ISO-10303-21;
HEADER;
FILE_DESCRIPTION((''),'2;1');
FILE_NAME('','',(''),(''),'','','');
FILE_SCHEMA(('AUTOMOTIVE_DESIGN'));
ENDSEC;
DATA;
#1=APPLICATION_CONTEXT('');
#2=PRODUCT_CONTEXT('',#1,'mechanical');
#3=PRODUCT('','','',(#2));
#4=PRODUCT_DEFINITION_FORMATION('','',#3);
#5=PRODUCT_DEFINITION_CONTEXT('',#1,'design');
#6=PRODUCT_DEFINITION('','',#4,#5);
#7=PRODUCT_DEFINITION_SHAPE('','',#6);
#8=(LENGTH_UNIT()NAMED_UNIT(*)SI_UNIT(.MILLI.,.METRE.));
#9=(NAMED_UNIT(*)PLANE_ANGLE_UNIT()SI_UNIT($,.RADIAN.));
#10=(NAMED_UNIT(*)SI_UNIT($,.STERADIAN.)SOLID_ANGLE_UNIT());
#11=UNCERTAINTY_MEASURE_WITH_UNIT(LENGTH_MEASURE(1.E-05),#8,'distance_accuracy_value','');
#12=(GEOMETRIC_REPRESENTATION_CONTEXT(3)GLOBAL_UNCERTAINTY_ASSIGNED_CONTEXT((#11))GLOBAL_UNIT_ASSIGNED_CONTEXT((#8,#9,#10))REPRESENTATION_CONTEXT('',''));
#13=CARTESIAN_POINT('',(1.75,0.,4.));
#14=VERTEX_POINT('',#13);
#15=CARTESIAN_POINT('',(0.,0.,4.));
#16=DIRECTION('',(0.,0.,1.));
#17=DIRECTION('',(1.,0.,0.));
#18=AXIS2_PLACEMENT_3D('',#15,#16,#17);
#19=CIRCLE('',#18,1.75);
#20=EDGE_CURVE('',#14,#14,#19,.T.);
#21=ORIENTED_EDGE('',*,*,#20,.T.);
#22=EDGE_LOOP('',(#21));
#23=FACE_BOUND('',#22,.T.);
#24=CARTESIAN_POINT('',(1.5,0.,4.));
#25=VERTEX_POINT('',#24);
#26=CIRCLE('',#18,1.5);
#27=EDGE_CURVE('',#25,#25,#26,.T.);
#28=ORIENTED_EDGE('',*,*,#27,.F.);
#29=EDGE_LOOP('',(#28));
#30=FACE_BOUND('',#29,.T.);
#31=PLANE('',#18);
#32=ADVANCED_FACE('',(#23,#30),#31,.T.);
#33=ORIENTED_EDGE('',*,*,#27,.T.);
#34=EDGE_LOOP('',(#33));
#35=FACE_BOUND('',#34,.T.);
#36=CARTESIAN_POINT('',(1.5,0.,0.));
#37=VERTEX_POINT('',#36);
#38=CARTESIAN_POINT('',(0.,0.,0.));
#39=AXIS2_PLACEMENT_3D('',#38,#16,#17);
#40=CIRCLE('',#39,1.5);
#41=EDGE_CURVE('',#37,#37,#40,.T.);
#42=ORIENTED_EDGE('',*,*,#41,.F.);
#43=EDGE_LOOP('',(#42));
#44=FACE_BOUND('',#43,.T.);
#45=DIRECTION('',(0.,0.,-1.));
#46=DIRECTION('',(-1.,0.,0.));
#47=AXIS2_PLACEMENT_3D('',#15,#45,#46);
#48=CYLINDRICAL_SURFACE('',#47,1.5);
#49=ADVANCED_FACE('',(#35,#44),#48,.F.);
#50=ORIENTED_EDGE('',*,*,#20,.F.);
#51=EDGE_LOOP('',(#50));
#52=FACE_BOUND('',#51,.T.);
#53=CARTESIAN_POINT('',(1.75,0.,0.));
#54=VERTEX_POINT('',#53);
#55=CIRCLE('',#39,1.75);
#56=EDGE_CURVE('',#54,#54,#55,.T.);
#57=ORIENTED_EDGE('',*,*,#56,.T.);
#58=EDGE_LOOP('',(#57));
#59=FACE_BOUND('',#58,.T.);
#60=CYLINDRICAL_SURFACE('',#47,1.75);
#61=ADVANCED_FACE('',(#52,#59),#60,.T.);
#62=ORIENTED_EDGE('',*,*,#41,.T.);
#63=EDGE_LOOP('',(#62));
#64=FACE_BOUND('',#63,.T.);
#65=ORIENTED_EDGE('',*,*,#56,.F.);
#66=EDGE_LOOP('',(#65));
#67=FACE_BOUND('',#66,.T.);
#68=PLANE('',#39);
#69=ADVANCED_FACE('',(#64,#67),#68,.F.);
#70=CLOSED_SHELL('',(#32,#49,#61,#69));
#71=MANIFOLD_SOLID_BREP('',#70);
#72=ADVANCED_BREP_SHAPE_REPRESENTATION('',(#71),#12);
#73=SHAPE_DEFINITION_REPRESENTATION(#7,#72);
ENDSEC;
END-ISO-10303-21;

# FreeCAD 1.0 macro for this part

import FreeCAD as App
import Part
import Sketcher
from FreeCAD import Vector
Q = App.Units.Quantity

doc = App.newDocument("Part")
body = doc.addObject("PartDesign::Body", "Body")

sketch1 = body.newObject("Sketcher::SketchObject", "Sketch")
sketch1.AttachmentSupport = (doc.getObject("XY_Plane"), [""])
sketch1.MapMode = "FlatFace"
sketch1.addGeometry(Part.Circle(Vector(0, 0, 0), Vector(0, 0, 1), 1.8), False)
sketch1.addGeometry(Part.Circle(Vector(0, 0, 0), Vector(0, 0, 1), 1.5), False)
sketch1.addConstraint(Sketcher.Constraint("Coincident", 0, 3, -1, 1))
sketch1.addConstraint(Sketcher.Constraint("Coincident", 1, 3, -1, 1))
sketch1.addConstraint(Sketcher.Constraint("Diameter", 1, Q("3 mm")))
sketch1.addConstraint(Sketcher.Constraint("Diameter", 0, Q("3.5 mm")))
pad1 = body.newObject("PartDesign::Pad", "Pad")
pad1.Profile = sketch1
pad1.Length = 4

doc.recompute()
